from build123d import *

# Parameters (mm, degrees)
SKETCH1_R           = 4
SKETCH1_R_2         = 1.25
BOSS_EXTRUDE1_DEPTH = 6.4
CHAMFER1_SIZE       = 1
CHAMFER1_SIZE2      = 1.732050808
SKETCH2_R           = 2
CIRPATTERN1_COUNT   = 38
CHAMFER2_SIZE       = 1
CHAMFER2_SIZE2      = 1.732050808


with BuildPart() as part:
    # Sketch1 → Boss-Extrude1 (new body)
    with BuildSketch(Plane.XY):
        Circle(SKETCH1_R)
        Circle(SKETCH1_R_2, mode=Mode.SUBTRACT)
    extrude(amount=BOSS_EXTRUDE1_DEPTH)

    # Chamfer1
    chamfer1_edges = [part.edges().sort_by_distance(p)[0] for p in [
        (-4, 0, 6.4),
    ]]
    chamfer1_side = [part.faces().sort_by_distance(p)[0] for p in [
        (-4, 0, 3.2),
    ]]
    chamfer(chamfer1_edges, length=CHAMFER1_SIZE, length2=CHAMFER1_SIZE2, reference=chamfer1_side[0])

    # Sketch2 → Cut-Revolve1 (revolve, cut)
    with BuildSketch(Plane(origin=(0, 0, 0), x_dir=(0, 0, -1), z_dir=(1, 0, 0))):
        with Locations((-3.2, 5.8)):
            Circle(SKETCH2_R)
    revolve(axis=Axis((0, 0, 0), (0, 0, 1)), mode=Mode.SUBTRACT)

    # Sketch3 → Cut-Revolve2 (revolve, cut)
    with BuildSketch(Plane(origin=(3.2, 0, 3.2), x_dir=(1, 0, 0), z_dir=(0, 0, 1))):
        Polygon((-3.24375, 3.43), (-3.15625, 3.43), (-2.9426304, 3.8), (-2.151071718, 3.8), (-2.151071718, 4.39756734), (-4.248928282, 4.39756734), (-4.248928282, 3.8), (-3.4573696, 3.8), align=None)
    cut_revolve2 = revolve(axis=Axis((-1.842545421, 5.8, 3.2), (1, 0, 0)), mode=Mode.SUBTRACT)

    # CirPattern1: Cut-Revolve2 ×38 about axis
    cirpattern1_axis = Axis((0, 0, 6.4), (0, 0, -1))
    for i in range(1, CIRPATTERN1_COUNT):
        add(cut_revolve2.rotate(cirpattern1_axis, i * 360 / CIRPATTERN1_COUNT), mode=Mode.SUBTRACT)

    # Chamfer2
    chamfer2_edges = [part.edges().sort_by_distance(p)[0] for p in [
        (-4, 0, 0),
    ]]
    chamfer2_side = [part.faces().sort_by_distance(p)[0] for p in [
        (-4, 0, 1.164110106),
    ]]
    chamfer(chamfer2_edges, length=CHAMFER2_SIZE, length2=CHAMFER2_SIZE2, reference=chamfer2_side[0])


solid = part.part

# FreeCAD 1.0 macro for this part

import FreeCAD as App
import Part
import Sketcher
from FreeCAD import Vector
Q = App.Units.Quantity


def edges_at(feature, points):
    """Names of the edges that pass closest to the given points."""
    edges = feature.Shape.Edges
    near = lambda p: min(range(len(edges)), key=lambda i: edges[i].distToShape(Part.Vertex(*p))[0])
    return sorted({f"Edge{near(p) + 1}" for p in points})


def add_polygon(sketch, points):
    """Adds a closed chain of lines whose ends are joined by coincident constraints."""
    first, n = sketch.GeometryCount, len(points)
    for a, b in zip(points, points[1:] + points[:1]):
        sketch.addGeometry(Part.LineSegment(App.Vector(*a, 0), App.Vector(*b, 0)), False)
    for i in range(n):
        sketch.addConstraint(Sketcher.Constraint("Coincident", first + i, 2, first + (i + 1) % n, 1))

doc = App.newDocument("Part")
body = doc.addObject("PartDesign::Body", "Body")

# Sketch on XY plane
sketch1 = doc.addObject("Sketcher::SketchObject", "Sketch")
body.addObject(sketch1)
sketch1.AttachmentSupport = (doc.XY_Plane, [""])
sketch1.MapMode = "FlatFace"
sketch1.addGeometry(Part.Circle(Vector(0, 0, 0), Vector(0, 0, 1), 4), False)
sketch1.addGeometry(Part.Circle(Vector(0, 0, 0), Vector(0, 0, 1), 1.25), False)
sketch1.addConstraint(Sketcher.Constraint("Coincident", 0, 3, -1, 1))
sketch1.addConstraint(Sketcher.Constraint("Coincident", 1, 3, -1, 1))
sketch1.addConstraint(Sketcher.Constraint("Diameter", 0, Q("8 mm")))
sketch1.addConstraint(Sketcher.Constraint("Diameter", 1, Q("2.5 mm")))
pad1 = doc.addObject("PartDesign::Pad", "Pad")
body.addObject(pad1)
pad1.Profile = sketch1
pad1.Length = 6.4
doc.recompute()

chamfer = doc.addObject("PartDesign::Chamfer", "Chamfer")
body.addObject(chamfer)
chamfer.Base = (pad1, edges_at(pad1, [(-4, 0, 6.4)]))
chamfer.ChamferType = "Two distances"
chamfer.Size = 1
chamfer.Size2 = 1.732051

# Sketch on YZ plane
sketch2 = doc.addObject("Sketcher::SketchObject", "Sketch001")
body.addObject(sketch2)
sketch2.AttachmentSupport = (doc.YZ_Plane, [""])
sketch2.MapMode = "FlatFace"
sketch2.addGeometry(Part.Circle(Vector(5.8, 3.2, 0), Vector(0, 0, 1), 2), False)
sketch2.addConstraint(Sketcher.Constraint("Diameter", 0, Q("4 mm")))
sketch2.addConstraint(Sketcher.Constraint("DistanceX", -1, 1, 0, 3, Q("5.8 mm")))
sketch2.addConstraint(Sketcher.Constraint("DistanceY", -1, 1, 0, 3, Q("3.2 mm")))
groove = doc.addObject("PartDesign::Groove", "Groove")
body.addObject(groove)
groove.Profile = sketch2
groove.ReferenceAxis = (sketch2, ["V_Axis"])
groove.Angle = 360

# Sketch on XY plane
sketch3 = doc.addObject("Sketcher::SketchObject", "Sketch002")
body.addObject(sketch3)
sketch3.AttachmentSupport = (doc.XY_Plane, [""])
sketch3.MapMode = "FlatFace"
sketch3.AttachmentOffset = App.Placement(Vector(0, 0, 3.2), App.Rotation())
add_polygon(sketch3, [(-0.04375, 3.43), (0.04375, 3.43), (0.25737, 3.8), (1.048928, 3.8), (1.048928, 4.397567), (-1.048928, 4.397567), (-1.048928, 3.8), (-0.25737, 3.8)])  # lines 0-7
sketch3.addGeometry(Part.LineSegment(Vector(-1.048928, 5.8, 0), Vector(1.048928, 5.8, 0)), True)  # axis
sketch3.addConstraint(Sketcher.Constraint("Horizontal", 0))
sketch3.addConstraint(Sketcher.Constraint("Horizontal", 2))
sketch3.addConstraint(Sketcher.Constraint("Vertical", 3))
sketch3.addConstraint(Sketcher.Constraint("Horizontal", 4))
sketch3.addConstraint(Sketcher.Constraint("Vertical", 5))
sketch3.addConstraint(Sketcher.Constraint("Horizontal", 6))
sketch3.addConstraint(Sketcher.Constraint("Horizontal", 8))
sketch3.addConstraint(Sketcher.Constraint("Symmetric", 2, 2, 5, 2, -2))
sketch3.addConstraint(Sketcher.Constraint("Vertical", 5, 2, 8, 1))
sketch3.addConstraint(Sketcher.Constraint("Vertical", 3, 2, 8, 2))
sketch3.addConstraint(Sketcher.Constraint("Equal", 2, 6))
sketch3.addConstraint(Sketcher.Constraint("Equal", 1, 7))
sketch3.addConstraint(Sketcher.Constraint("Angle", 1, Q("60 deg")))
sketch3.addConstraint(Sketcher.Constraint("DistanceY", 5, 2, 8, 1, Q("2 mm")))
sketch3.addConstraint(Sketcher.Constraint("DistanceY", -1, 1, 1, 2, Q("3.8 mm")))
sketch3.addConstraint(Sketcher.Constraint("DistanceY", -1, 1, 0, 2, Q("3.43 mm")))
sketch3.addConstraint(Sketcher.Constraint("DistanceX", 0, 1, 0, 2, Q("0.0875 mm")))
sketch3.addConstraint(Sketcher.Constraint("DistanceX", 2, 1, 2, 2, Q("0.791559 mm")))
sketch3.addConstraint(Sketcher.Constraint("DistanceY", 3, 1, 3, 2, Q("0.597567 mm")))
groove2 = doc.addObject("PartDesign::Groove", "Groove001")
body.addObject(groove2)
groove2.Profile = sketch3
groove2.ReferenceAxis = (sketch3, ["Axis0"])
groove2.Angle = 360
doc.recompute()

polarpattern = doc.addObject("PartDesign::PolarPattern", "PolarPattern")
body.addObject(polarpattern)
polarpattern.Originals = [groove2]
polarpattern.Axis = (doc.Z_Axis, [""])
polarpattern.Angle = 360
polarpattern.Occurrences = 38
body.Tip = polarpattern
doc.recompute()

chamfer2 = doc.addObject("PartDesign::Chamfer", "Chamfer001")
body.addObject(chamfer2)
chamfer2.Base = (polarpattern, edges_at(polarpattern, [(-4, 0, 0)]))
chamfer2.ChamferType = "Two distances"
chamfer2.Size = 1
chamfer2.Size2 = 1.732051

doc.recompute()
